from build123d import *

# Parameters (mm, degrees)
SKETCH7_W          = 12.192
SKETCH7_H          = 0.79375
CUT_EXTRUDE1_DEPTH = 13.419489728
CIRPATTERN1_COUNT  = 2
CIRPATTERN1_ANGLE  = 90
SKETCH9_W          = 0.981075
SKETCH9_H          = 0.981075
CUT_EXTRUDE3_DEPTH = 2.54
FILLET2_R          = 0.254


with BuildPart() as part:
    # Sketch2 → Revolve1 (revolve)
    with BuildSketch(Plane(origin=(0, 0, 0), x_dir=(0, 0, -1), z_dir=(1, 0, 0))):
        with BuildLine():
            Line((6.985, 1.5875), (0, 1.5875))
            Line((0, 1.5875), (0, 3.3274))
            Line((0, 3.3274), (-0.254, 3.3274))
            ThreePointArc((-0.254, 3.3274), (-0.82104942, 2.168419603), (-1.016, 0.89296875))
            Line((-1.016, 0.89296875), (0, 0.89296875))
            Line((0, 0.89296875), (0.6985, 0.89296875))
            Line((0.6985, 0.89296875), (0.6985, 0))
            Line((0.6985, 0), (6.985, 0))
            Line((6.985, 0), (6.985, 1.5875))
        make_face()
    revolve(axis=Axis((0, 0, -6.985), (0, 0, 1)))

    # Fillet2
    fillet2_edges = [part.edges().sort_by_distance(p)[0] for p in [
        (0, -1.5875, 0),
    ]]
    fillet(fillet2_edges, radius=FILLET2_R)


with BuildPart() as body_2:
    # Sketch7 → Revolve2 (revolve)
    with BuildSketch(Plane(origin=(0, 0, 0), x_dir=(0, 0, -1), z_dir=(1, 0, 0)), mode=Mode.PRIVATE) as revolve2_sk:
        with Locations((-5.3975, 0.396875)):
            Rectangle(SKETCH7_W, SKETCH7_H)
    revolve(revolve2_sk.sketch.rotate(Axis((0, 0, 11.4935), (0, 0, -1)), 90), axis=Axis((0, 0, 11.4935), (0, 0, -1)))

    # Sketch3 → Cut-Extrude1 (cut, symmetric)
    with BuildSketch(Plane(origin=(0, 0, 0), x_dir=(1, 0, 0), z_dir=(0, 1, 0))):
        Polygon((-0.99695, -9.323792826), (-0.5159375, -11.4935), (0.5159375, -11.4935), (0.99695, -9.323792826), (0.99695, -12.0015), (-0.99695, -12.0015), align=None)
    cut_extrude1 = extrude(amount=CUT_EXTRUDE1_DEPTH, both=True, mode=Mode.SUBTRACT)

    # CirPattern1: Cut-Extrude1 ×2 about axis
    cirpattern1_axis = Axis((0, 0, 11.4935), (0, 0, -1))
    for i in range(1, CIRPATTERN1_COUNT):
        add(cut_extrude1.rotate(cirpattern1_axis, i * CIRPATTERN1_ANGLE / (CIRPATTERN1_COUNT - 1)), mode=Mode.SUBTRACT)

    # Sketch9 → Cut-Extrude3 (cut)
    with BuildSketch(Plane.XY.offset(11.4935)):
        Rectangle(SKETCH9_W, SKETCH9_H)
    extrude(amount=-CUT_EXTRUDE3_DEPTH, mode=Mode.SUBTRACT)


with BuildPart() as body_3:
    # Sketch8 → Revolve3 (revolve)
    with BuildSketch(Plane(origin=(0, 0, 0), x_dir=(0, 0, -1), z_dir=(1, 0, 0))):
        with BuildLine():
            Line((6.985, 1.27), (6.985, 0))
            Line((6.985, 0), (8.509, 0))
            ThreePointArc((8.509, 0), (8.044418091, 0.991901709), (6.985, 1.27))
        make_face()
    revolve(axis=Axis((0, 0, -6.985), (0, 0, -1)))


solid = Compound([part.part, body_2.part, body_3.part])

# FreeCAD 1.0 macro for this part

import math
import FreeCAD as App
import Part
import Sketcher
Q = App.Units.Quantity


def edges_at(feature, points):
    """Names of the edges that pass closest to the given points."""
    edges = feature.Shape.Edges
    near = lambda p: min(range(len(edges)), key=lambda i: edges[i].distToShape(Part.Vertex(*p))[0])
    return sorted({f"Edge{near(p) + 1}" for p in points})


def add_polygon(sketch, points):
    """Adds a closed chain of lines whose ends are joined by coincident constraints."""
    first, n = sketch.GeometryCount, len(points)
    for a, b in zip(points, points[1:] + points[:1]):
        sketch.addGeometry(Part.LineSegment(App.Vector(*a, 0), App.Vector(*b, 0)), False)
    for i in range(n):
        sketch.addConstraint(Sketcher.Constraint("Coincident", first + i, 2, first + (i + 1) % n, 1))

doc = App.newDocument("Part")
body = doc.addObject("PartDesign::Body", "Body")

# Sketch on YZ plane
sketch1 = body.newObject("Sketcher::SketchObject", "Sketch")
sketch1.AttachmentSupport = (doc.getObject("YZ_Plane"), [""])
sketch1.MapMode = "FlatFace"
sketch1.addGeometry([
    Part.LineSegment(App.Vector(1.59, -6.99, 0), App.Vector(1.59, 0, 0)),  # 0
    Part.LineSegment(App.Vector(1.59, 0, 0), App.Vector(3.33, 0, 0)),  # 1
    Part.LineSegment(App.Vector(3.33, 0, 0), App.Vector(3.33, 0.25, 0)),  # 2
    Part.ArcOfCircle(Part.Circle(App.Vector(0.89, -3.25, 0), App.Vector(0, 0, 1), 4.27), math.radians(55), math.radians(90)),  # 3
    Part.LineSegment(App.Vector(0.89, 1.02, 0), App.Vector(0.89, -0.7, 0)),  # 4
    Part.LineSegment(App.Vector(0.89, -0.7, 0), App.Vector(0, -0.7, 0)),  # 5
    Part.LineSegment(App.Vector(0, -0.7, 0), App.Vector(0, -6.99, 0)),  # 6
    Part.LineSegment(App.Vector(0, -6.99, 0), App.Vector(1.59, -6.99, 0)),  # 7
], False)
sketch1.addConstraint([
    Sketcher.Constraint("Coincident", 0, 2, 1, 1),
    Sketcher.Constraint("Coincident", 1, 2, 2, 1),
    Sketcher.Constraint("Coincident", 2, 2, 3, 1),
    Sketcher.Constraint("Coincident", 3, 2, 4, 1),
    Sketcher.Constraint("Coincident", 4, 2, 5, 1),
    Sketcher.Constraint("Coincident", 5, 2, 6, 1),
    Sketcher.Constraint("Coincident", 6, 2, 7, 1),
    Sketcher.Constraint("Coincident", 7, 2, 0, 1),
    Sketcher.Constraint("Vertical", 0),
    Sketcher.Constraint("Horizontal", 1),
    Sketcher.Constraint("Vertical", 2),
    Sketcher.Constraint("Vertical", 4),
    Sketcher.Constraint("Horizontal", 5),
    Sketcher.Constraint("Vertical", 6),
    Sketcher.Constraint("Horizontal", 7),
    Sketcher.Constraint("PointOnObject", 0, 2, -1),
    Sketcher.Constraint("PointOnObject", 5, 2, -2),
    Sketcher.Constraint("DistanceY", 2, 1, 2, 2, Q("0.01 in")),
    Sketcher.Constraint("DistanceX", 7, 1, 7, 2, Q("0.0625 in")),
    Sketcher.Constraint("DistanceY", 0, 1, 0, 2, Q("0.275 in")),
    Sketcher.Constraint("DistanceY", -1, 1, 3, 2, Q("0.04 in")),
    Sketcher.Constraint("DistanceX", 1, 1, 1, 2, Q("0.0685 in")),
    Sketcher.Constraint("DistanceY", 4, 2, 4, 1, Q("0.0675 in")),
    Sketcher.Constraint("Radius", 3, 4.26975),
    Sketcher.Constraint("DistanceX", 5, 2, 5, 1, 0.892969),
])
revolution = body.newObject("PartDesign::Revolution", "Revolution")
revolution.Profile = sketch1
revolution.ReferenceAxis = (sketch1, ["V_Axis"])
revolution.Angle = 360
doc.recompute()

fillet = body.newObject("PartDesign::Fillet", "Fillet")
fillet.Base = (revolution, edges_at(revolution, [(0, -1.587, 0)]))
fillet.Radius = Q("0.01 in")
body2 = doc.addObject("PartDesign::Body", "Body001")

# Sketch on YZ plane
sketch2 = body2.newObject("Sketcher::SketchObject", "Sketch001")
sketch2.AttachmentSupport = (doc.getObject("YZ_Plane001"), [""])
sketch2.MapMode = "FlatFace"
add_polygon(sketch2, [(0.8, 11.5), (0, 11.5), (0, -0.7), (0.8, -0.7)])  # lines 0-3
sketch2.addConstraint([
    Sketcher.Constraint("Horizontal", 0),
    Sketcher.Constraint("Vertical", 1),
    Sketcher.Constraint("Horizontal", 2),
    Sketcher.Constraint("Vertical", 3),
    Sketcher.Constraint("PointOnObject", 0, 2, -2),
    Sketcher.Constraint("DistanceY", 1, 2, 1, 1, Q("0.48 in")),
    Sketcher.Constraint("DistanceX", 0, 2, 0, 1, Q("0.03125 in")),
    Sketcher.Constraint("DistanceY", -1, 1, 0, 2, Q("0.4525 in")),
])
revolution2 = body2.newObject("PartDesign::Revolution", "Revolution001")
revolution2.Profile = sketch2
revolution2.ReferenceAxis = (sketch2, ["V_Axis"])
revolution2.Angle = 360

# Sketch on XZ plane
sketch3 = body2.newObject("Sketcher::SketchObject", "Sketch002")
sketch3.AttachmentSupport = (doc.getObject("XZ_Plane001"), [""])
sketch3.MapMode = "FlatFace"
add_polygon(sketch3, [(-0.5, 11.5), (-1, 9.3), (-1, 12), (1, 12), (1, 9.3), (0.5, 11.5)])  # lines 0-5
sketch3.addConstraint([
    Sketcher.Constraint("Vertical", 1),
    Sketcher.Constraint("Horizontal", 2),
    Sketcher.Constraint("Vertical", 3),
    Sketcher.Constraint("Horizontal", 5),
    Sketcher.Constraint("Symmetric", 0, 2, 3, 2, -2),
    Sketcher.Constraint("Equal", 0, 4),
    Sketcher.Constraint("Angle", 0, Q("-102.5 deg")),
    Sketcher.Constraint("DistanceY", 4, 2, 2, 2, Q("0.02 in")),
    Sketcher.Constraint("DistanceX", 2, 1, 2, 2, Q("0.0785 in")),
    Sketcher.Constraint("DistanceY", -1, 1, 1, 2, Q("0.4725 in")),
    Sketcher.Constraint("DistanceX", 5, 2, 5, 1, 1.031875),
])
pocket1 = body2.newObject("PartDesign::Pocket", "Pocket")
pocket1.Profile = sketch3
pocket1.Length = 26.838979
pocket1.Midplane = True
doc.recompute()

polarpattern = body2.newObject("PartDesign::PolarPattern", "PolarPattern")
polarpattern.Originals = [pocket1]
polarpattern.Axis = (doc.getObject("Z_Axis001"), [""])
polarpattern.Angle = 90
polarpattern.Occurrences = 2
polarpattern.Reversed = True
body2.Tip = polarpattern

# Sketch on XY plane
sketch4 = body2.newObject("Sketcher::SketchObject", "Sketch003")
sketch4.AttachmentSupport = (doc.getObject("XY_Plane001"), [""])
sketch4.MapMode = "FlatFace"
sketch4.AttachmentOffset = App.Placement(App.Vector(0, 0, 0.4525 * 25.4), App.Rotation())
add_polygon(sketch4, [(-0.5, 0.5), (-0.5, -0.5), (0.5, -0.5), (0.5, 0.5)])  # lines 0-3
sketch4.addConstraint([
    Sketcher.Constraint("Vertical", 0),
    Sketcher.Constraint("Horizontal", 1),
    Sketcher.Constraint("Vertical", 2),
    Sketcher.Constraint("Horizontal", 3),
    Sketcher.Constraint("Symmetric", 0, 2, 2, 2, -1, 1),
    Sketcher.Constraint("Equal", 3, 0),
    Sketcher.Constraint("DistanceX", 1, 1, 1, 2, 0.981075),
])
pocket2 = body2.newObject("PartDesign::Pocket", "Pocket001")
pocket2.Profile = sketch4
pocket2.Length = Q("0.1 in")
body3 = doc.addObject("PartDesign::Body", "Body002")

# Sketch on YZ plane
sketch5 = body3.newObject("Sketcher::SketchObject", "Sketch004")
sketch5.AttachmentSupport = (doc.getObject("YZ_Plane002"), [""])
sketch5.MapMode = "FlatFace"
sketch5.addGeometry([
    Part.LineSegment(App.Vector(1.3, -7, 0), App.Vector(0, -7, 0)),
    Part.LineSegment(App.Vector(0, -7, 0), App.Vector(0, -8.5, 0)),
    Part.ArcOfCircle(Part.Circle(App.Vector(0, -7.2, 0), App.Vector(0, 0, 1), 1.3), math.radians(-90), math.radians(10)),
], False)
sketch5.addConstraint([
    Sketcher.Constraint("Coincident", 0, 2, 1, 1),
    Sketcher.Constraint("Coincident", 1, 2, 2, 1),
    Sketcher.Constraint("Coincident", 2, 2, 0, 1),
    Sketcher.Constraint("Horizontal", 0),
    Sketcher.Constraint("Vertical", 1),
    Sketcher.Constraint("PointOnObject", 2, 3, -2),
    Sketcher.Constraint("PointOnObject", 0, 2, -2),
    Sketcher.Constraint("DistanceX", 0, 2, 0, 1, Q("0.05 in")),
    Sketcher.Constraint("DistanceY", 1, 2, 1, 1, Q("0.06 in")),
    Sketcher.Constraint("DistanceY", 0, 2, -1, 1, Q("0.275 in")),
])
revolution3 = body3.newObject("PartDesign::Revolution", "Revolution002")
revolution3.Profile = sketch5
revolution3.ReferenceAxis = (sketch5, ["V_Axis"])
revolution3.Angle = 360

doc.recompute()
